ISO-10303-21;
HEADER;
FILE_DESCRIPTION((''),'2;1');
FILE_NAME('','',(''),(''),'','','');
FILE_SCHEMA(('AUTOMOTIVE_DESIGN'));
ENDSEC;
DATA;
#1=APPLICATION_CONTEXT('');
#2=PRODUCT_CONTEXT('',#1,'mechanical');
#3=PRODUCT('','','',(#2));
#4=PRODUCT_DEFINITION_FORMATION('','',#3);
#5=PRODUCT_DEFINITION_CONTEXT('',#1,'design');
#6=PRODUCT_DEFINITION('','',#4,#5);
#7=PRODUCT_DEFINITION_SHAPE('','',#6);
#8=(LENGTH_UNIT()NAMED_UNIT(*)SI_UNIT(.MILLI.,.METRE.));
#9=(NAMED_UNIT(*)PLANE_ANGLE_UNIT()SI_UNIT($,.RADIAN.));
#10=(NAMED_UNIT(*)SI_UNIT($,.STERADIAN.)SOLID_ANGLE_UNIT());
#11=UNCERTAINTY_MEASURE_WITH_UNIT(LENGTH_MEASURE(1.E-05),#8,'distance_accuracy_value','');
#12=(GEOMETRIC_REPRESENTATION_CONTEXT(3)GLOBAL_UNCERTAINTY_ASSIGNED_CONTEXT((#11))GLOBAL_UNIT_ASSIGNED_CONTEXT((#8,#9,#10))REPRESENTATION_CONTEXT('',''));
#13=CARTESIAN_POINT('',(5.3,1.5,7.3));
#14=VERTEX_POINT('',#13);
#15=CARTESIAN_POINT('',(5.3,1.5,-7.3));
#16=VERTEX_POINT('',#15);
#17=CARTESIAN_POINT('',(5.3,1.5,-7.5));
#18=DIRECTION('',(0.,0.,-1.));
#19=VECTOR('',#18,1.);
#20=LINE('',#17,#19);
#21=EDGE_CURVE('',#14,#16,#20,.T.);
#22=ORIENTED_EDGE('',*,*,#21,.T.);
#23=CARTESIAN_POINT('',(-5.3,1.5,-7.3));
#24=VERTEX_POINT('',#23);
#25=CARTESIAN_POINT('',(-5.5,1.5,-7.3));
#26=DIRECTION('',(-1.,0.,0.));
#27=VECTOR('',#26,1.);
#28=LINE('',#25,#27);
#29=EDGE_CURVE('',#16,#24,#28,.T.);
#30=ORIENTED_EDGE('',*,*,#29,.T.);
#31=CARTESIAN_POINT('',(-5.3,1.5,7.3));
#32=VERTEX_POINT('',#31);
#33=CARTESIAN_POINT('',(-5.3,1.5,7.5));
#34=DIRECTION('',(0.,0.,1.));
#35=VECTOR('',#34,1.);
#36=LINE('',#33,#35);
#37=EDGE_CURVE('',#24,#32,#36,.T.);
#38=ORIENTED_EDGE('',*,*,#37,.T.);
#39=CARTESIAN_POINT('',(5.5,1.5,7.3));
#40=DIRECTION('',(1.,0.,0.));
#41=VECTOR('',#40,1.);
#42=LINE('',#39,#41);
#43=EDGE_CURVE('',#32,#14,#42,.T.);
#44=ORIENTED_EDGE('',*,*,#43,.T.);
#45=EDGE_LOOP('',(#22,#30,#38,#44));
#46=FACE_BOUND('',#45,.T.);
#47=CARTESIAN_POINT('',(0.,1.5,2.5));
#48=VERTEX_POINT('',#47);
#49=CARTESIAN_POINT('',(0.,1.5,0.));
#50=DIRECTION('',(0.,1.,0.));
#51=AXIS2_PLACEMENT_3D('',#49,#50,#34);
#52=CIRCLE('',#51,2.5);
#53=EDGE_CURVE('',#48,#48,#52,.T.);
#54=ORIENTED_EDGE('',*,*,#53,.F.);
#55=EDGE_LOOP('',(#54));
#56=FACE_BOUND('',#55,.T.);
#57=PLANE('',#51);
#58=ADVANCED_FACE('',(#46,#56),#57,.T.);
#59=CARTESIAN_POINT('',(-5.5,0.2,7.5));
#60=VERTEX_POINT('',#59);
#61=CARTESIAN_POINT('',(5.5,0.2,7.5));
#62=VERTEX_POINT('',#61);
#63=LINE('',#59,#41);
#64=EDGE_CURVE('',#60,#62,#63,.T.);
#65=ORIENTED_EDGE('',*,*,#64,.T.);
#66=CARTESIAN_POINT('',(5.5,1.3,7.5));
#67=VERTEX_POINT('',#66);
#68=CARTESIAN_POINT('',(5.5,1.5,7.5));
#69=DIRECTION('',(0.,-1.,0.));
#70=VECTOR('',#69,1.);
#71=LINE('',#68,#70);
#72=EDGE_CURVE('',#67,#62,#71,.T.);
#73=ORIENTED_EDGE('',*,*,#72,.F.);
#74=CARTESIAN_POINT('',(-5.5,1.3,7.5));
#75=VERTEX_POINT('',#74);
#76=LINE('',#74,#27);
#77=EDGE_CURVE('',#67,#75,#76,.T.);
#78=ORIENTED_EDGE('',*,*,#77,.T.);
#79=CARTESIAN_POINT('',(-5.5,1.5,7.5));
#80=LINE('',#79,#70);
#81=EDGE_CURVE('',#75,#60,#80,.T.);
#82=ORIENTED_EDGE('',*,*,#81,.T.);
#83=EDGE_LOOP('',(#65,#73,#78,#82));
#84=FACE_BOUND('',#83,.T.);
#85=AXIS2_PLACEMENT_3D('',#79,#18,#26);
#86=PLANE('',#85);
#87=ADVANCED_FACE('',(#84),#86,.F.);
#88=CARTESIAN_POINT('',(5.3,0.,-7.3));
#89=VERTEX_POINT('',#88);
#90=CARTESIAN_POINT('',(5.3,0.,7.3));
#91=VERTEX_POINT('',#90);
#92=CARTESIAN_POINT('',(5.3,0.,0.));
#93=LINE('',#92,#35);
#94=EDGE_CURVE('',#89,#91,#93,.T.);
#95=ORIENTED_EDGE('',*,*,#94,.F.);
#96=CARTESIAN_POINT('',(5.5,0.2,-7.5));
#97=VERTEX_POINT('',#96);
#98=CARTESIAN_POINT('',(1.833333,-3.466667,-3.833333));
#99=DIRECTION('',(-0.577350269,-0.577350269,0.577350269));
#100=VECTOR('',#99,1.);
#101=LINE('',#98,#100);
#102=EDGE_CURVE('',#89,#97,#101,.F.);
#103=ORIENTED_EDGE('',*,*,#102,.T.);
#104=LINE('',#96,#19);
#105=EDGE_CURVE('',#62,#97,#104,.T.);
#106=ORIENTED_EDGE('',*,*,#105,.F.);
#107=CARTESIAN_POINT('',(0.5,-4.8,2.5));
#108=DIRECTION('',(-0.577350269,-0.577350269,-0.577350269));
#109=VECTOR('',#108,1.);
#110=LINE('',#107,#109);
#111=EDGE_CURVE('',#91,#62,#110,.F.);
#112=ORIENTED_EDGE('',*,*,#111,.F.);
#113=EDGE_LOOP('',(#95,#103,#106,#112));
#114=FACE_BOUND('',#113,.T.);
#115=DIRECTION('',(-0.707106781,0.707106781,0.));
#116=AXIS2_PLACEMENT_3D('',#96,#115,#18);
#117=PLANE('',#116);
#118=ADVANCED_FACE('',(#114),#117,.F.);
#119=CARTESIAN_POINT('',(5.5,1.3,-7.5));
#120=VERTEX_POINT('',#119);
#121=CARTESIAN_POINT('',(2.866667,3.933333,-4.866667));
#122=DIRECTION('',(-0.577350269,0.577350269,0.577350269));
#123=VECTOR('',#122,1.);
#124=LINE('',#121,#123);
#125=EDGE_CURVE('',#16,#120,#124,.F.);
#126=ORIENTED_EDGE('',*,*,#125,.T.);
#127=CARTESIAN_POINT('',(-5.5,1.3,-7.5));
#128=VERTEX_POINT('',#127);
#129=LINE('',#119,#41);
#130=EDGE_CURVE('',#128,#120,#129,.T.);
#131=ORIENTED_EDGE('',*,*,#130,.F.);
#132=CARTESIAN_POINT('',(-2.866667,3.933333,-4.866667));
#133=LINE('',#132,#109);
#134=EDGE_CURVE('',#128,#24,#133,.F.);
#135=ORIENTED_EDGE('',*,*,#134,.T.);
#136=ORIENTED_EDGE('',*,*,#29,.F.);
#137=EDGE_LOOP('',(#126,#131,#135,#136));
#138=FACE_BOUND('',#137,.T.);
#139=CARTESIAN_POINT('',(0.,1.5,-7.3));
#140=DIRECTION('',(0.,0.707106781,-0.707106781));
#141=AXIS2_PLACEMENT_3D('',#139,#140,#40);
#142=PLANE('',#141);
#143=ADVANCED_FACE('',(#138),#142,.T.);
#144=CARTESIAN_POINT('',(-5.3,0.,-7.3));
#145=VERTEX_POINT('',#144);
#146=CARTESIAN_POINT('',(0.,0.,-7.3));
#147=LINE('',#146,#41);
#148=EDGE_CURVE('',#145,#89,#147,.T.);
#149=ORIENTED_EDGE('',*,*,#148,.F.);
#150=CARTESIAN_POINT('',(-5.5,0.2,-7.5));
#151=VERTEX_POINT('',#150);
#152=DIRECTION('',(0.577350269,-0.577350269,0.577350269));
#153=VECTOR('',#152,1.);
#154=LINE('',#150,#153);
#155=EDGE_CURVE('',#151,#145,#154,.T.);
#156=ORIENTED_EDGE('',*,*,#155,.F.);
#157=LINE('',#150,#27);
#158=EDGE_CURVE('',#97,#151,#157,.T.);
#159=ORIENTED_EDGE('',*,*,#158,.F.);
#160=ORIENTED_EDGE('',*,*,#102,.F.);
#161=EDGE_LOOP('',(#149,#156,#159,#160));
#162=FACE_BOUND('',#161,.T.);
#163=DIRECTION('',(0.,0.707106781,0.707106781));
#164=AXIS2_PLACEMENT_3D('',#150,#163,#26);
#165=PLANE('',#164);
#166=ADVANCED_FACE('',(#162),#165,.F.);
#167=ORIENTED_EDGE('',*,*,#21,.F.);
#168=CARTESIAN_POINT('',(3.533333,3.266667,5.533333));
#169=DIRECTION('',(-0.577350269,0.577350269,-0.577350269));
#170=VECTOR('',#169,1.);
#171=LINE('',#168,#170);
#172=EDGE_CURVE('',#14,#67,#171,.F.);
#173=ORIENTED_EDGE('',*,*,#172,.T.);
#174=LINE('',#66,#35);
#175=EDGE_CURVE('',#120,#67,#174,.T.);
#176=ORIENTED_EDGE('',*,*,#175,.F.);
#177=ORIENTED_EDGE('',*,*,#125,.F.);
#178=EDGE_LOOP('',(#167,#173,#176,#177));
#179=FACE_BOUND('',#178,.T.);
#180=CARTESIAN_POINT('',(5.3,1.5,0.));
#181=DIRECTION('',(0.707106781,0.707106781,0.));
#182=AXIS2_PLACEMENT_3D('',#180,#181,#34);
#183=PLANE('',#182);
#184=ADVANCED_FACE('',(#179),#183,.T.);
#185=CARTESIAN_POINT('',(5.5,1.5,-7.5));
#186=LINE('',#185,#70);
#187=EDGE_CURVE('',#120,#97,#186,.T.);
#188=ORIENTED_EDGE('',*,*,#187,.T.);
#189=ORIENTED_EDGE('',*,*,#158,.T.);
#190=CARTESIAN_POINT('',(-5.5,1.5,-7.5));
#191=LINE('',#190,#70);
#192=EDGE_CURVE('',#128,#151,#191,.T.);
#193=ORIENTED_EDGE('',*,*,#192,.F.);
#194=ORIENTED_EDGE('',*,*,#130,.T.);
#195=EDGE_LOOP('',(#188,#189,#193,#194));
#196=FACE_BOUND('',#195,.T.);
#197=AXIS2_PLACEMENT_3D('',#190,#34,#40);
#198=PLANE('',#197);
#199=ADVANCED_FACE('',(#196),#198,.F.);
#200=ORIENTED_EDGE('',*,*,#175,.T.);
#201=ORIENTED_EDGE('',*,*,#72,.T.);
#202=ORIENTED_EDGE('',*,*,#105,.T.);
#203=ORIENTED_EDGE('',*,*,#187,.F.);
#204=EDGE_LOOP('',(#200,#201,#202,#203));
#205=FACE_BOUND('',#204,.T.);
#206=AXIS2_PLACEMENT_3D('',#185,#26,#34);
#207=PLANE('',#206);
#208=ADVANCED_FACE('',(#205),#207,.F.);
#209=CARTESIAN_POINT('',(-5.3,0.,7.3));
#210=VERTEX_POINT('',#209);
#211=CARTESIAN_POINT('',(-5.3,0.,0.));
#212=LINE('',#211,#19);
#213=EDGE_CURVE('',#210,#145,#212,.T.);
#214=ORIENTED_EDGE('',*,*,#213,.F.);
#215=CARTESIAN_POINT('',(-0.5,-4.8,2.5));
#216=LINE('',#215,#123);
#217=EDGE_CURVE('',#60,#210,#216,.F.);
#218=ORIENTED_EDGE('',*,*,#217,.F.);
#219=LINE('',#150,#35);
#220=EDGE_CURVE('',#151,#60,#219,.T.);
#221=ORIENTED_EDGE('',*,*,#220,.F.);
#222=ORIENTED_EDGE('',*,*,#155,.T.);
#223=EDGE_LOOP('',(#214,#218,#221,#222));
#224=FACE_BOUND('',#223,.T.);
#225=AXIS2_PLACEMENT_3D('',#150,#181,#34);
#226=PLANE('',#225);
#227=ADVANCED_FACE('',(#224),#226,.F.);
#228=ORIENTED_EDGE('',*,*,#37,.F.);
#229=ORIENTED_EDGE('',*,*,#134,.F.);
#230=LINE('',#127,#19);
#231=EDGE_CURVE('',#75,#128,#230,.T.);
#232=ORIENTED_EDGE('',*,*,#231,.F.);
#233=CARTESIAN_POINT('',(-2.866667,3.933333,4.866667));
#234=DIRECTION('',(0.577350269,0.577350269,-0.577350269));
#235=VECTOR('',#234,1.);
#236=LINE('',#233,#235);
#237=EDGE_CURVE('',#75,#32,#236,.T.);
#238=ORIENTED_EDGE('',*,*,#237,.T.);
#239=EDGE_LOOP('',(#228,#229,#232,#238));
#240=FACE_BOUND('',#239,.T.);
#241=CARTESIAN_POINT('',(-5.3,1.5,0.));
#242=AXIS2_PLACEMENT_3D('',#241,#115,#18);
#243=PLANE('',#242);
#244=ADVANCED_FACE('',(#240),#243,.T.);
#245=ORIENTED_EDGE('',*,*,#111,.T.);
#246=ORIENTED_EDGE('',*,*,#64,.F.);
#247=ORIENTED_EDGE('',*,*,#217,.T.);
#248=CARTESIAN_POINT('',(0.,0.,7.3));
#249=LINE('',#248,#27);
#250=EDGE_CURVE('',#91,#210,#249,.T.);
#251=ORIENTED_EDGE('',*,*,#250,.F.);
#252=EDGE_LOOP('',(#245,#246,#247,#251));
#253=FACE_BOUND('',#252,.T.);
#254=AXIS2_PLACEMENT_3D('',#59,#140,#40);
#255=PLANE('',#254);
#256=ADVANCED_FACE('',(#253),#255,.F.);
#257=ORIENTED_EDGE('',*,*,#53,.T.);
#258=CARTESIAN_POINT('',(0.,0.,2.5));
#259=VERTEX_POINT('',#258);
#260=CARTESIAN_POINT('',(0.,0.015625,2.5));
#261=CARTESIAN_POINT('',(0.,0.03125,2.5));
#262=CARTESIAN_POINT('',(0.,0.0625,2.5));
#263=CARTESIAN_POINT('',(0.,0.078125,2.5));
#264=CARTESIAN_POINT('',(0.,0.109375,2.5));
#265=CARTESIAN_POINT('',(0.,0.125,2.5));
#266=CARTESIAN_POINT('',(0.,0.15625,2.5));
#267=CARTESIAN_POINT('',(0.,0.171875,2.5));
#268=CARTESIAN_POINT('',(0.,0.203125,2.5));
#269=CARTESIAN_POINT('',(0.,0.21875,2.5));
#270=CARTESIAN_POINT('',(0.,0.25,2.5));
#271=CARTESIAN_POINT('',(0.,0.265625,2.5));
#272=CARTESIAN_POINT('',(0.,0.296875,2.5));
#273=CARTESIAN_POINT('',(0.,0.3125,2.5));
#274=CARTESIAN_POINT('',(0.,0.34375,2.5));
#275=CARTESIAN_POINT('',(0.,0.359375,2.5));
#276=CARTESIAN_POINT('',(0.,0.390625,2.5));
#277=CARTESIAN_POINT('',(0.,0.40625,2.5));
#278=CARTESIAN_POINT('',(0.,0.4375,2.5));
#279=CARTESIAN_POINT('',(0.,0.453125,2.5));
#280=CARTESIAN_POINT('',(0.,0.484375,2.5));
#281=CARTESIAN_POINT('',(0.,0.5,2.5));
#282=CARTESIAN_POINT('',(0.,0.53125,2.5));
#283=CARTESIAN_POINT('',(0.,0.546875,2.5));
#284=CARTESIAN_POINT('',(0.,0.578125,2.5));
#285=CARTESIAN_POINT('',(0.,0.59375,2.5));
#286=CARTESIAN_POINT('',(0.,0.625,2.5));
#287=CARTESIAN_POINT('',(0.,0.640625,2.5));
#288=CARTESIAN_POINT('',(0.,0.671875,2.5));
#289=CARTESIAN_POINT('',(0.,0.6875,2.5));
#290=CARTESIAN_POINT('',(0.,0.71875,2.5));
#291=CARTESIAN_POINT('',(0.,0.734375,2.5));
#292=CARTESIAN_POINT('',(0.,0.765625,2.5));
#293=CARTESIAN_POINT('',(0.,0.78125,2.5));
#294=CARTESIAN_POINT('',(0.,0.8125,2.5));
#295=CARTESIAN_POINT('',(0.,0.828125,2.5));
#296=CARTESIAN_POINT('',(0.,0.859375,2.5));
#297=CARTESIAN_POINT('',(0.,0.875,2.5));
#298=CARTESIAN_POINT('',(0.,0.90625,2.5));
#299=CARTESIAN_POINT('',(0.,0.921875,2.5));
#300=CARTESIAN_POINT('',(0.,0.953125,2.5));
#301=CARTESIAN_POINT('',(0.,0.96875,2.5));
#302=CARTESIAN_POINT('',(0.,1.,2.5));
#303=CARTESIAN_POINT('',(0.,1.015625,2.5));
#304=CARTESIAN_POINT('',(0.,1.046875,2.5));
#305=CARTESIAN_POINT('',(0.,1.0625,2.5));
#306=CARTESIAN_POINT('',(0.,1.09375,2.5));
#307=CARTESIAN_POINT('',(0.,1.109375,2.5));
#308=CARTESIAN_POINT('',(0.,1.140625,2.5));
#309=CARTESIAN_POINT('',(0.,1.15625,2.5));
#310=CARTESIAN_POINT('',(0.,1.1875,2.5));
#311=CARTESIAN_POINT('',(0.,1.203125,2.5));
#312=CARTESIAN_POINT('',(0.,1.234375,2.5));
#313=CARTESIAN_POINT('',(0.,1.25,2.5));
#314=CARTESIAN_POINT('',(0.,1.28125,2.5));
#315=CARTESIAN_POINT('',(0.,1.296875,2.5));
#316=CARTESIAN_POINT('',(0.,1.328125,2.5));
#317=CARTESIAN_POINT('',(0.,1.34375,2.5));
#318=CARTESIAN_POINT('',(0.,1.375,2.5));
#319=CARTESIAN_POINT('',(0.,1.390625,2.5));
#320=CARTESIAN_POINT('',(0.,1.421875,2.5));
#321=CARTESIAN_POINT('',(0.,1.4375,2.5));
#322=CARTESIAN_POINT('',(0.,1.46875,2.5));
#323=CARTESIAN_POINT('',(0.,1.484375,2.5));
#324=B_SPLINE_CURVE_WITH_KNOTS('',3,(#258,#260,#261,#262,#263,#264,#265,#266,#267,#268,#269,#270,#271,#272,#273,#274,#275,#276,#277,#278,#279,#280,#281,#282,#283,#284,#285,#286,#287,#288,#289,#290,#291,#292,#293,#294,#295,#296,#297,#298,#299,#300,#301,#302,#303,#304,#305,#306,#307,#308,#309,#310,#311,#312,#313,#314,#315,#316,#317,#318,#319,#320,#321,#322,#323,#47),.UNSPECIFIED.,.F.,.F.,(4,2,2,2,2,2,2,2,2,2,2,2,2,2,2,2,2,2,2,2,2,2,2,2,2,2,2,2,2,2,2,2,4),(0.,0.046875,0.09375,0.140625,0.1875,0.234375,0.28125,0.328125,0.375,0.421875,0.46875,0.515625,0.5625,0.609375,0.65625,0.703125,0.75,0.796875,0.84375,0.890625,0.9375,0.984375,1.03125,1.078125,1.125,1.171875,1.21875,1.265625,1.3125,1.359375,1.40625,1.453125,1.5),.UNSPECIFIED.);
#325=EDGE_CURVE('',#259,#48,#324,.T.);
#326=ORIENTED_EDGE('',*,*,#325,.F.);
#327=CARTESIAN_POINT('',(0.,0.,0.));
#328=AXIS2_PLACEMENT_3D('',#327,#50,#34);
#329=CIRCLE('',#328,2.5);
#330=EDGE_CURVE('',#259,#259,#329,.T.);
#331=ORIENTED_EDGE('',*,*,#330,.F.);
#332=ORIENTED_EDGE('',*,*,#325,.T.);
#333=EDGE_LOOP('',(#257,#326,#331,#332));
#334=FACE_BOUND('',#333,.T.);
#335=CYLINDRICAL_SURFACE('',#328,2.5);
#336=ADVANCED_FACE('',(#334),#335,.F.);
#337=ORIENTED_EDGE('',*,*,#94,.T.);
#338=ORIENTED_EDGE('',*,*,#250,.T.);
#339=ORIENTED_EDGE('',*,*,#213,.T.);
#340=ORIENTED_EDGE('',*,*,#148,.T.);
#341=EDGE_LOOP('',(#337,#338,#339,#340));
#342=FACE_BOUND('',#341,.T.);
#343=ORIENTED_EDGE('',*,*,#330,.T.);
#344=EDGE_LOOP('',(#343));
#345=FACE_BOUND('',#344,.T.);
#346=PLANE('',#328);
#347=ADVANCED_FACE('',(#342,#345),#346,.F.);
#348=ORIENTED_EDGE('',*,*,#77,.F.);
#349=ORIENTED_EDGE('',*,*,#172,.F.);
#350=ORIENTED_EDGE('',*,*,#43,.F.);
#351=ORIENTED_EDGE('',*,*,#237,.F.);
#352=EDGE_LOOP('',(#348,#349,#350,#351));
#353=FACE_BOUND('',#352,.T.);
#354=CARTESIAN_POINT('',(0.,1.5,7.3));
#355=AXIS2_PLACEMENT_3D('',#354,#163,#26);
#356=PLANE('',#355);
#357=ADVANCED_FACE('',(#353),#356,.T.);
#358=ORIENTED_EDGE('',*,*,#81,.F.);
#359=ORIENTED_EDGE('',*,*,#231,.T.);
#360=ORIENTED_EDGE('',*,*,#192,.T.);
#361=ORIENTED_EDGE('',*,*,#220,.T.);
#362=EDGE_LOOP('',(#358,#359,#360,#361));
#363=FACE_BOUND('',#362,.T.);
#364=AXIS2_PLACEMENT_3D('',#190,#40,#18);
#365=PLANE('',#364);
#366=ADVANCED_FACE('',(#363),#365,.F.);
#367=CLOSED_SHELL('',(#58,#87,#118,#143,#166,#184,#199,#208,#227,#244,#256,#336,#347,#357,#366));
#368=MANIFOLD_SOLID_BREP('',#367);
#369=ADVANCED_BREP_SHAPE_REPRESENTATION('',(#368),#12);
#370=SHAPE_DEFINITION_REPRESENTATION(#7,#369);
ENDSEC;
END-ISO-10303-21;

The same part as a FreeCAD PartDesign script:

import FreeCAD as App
import Part
import Sketcher

V = App.Vector


def edges_at(feature, points):
    """Names of the edges that pass closest to the given points."""
    edges = feature.Shape.Edges
    near = lambda p: min(range(len(edges)), key=lambda i: edges[i].distToShape(Part.Vertex(*p))[0])
    return sorted({f"Edge{near(p) + 1}" for p in points})


def add_polygon(sketch, points):
    """Adds a closed chain of lines whose ends are joined by coincident constraints."""
    first, n = sketch.GeometryCount, len(points)
    for a, b in zip(points, points[1:] + points[:1]):
        sketch.addGeometry(Part.LineSegment(App.Vector(*a, 0), App.Vector(*b, 0)), False)
    for i in range(n):
        sketch.addConstraint(Sketcher.Constraint("Coincident", first + i, 2, first + (i + 1) % n, 1))

doc = App.newDocument("Part")
body = doc.addObject("PartDesign::Body", "Body")

# Sketch on XZ plane
sketch1 = body.newObject("Sketcher::SketchObject", "Sketch")
sketch1.AttachmentSupport = (doc.getObject("XZ_Plane"), [""])
sketch1.MapMode = "FlatFace"
add_polygon(sketch1, [(-6, -8), (-6, 8), (6, 8), (6, -8)])  # lines 0-3
sketch1.addConstraint([
    Sketcher.Constraint("Vertical", 0),
    Sketcher.Constraint("Horizontal", 1),
    Sketcher.Constraint("Vertical", 2),
    Sketcher.Constraint("Horizontal", 3),
    Sketcher.Constraint("Symmetric", 0, 2, 2, 2, -1, 1),
    Sketcher.Constraint("DistanceX", 1, 1, 1, 2, 11.0),
    Sketcher.Constraint("DistanceY", 0, 1, 0, 2, 15.0),
])
pad1 = body.newObject("PartDesign::Pad", "Pad")
pad1.Profile = sketch1
pad1.Length = 1.5
pad1.Reversed = True

# Sketch on XZ plane
sketch2 = body.newObject("Sketcher::SketchObject", "Sketch001")
sketch2.AttachmentSupport = (doc.getObject("XZ_Plane"), [""])
sketch2.MapMode = "FlatFace"
sketch2.AttachmentOffset = App.Placement(V(0, 0, -1.5), App.Rotation())
sketch2.addGeometry(Part.Circle(V(0, 0, 0), V(0, 0, 1), 2.5), False)
sketch2.addConstraint([
    Sketcher.Constraint("Coincident", 0, 3, -1, 1),
    Sketcher.Constraint("Diameter", 0, 5.0),
])
pocket1 = body.newObject("PartDesign::Pocket", "Pocket")
pocket1.Profile = sketch2
pocket1.Length = 1.5
pocket1.Reversed = True
doc.recompute()

chamfer = body.newObject("PartDesign::Chamfer", "Chamfer")
chamfer.Base = (pocket1, edges_at(pocket1, [
    (-5.5, 1.5, 0),
    (0, 1.5, 7.5),
    (5.5, 1.5, 0),
    (0, 1.5, -7.5),
]))
chamfer.Size = 0.2
doc.recompute()

chamfer2 = body.newObject("PartDesign::Chamfer", "Chamfer001")
chamfer2.Base = (chamfer, edges_at(chamfer, [
    (0, 0, 7.5),
    (-5.5, 0, 0),
    (0, 0, -7.5),
    (5.5, 0, 0),
]))
chamfer2.Size = 0.2

doc.recompute()
